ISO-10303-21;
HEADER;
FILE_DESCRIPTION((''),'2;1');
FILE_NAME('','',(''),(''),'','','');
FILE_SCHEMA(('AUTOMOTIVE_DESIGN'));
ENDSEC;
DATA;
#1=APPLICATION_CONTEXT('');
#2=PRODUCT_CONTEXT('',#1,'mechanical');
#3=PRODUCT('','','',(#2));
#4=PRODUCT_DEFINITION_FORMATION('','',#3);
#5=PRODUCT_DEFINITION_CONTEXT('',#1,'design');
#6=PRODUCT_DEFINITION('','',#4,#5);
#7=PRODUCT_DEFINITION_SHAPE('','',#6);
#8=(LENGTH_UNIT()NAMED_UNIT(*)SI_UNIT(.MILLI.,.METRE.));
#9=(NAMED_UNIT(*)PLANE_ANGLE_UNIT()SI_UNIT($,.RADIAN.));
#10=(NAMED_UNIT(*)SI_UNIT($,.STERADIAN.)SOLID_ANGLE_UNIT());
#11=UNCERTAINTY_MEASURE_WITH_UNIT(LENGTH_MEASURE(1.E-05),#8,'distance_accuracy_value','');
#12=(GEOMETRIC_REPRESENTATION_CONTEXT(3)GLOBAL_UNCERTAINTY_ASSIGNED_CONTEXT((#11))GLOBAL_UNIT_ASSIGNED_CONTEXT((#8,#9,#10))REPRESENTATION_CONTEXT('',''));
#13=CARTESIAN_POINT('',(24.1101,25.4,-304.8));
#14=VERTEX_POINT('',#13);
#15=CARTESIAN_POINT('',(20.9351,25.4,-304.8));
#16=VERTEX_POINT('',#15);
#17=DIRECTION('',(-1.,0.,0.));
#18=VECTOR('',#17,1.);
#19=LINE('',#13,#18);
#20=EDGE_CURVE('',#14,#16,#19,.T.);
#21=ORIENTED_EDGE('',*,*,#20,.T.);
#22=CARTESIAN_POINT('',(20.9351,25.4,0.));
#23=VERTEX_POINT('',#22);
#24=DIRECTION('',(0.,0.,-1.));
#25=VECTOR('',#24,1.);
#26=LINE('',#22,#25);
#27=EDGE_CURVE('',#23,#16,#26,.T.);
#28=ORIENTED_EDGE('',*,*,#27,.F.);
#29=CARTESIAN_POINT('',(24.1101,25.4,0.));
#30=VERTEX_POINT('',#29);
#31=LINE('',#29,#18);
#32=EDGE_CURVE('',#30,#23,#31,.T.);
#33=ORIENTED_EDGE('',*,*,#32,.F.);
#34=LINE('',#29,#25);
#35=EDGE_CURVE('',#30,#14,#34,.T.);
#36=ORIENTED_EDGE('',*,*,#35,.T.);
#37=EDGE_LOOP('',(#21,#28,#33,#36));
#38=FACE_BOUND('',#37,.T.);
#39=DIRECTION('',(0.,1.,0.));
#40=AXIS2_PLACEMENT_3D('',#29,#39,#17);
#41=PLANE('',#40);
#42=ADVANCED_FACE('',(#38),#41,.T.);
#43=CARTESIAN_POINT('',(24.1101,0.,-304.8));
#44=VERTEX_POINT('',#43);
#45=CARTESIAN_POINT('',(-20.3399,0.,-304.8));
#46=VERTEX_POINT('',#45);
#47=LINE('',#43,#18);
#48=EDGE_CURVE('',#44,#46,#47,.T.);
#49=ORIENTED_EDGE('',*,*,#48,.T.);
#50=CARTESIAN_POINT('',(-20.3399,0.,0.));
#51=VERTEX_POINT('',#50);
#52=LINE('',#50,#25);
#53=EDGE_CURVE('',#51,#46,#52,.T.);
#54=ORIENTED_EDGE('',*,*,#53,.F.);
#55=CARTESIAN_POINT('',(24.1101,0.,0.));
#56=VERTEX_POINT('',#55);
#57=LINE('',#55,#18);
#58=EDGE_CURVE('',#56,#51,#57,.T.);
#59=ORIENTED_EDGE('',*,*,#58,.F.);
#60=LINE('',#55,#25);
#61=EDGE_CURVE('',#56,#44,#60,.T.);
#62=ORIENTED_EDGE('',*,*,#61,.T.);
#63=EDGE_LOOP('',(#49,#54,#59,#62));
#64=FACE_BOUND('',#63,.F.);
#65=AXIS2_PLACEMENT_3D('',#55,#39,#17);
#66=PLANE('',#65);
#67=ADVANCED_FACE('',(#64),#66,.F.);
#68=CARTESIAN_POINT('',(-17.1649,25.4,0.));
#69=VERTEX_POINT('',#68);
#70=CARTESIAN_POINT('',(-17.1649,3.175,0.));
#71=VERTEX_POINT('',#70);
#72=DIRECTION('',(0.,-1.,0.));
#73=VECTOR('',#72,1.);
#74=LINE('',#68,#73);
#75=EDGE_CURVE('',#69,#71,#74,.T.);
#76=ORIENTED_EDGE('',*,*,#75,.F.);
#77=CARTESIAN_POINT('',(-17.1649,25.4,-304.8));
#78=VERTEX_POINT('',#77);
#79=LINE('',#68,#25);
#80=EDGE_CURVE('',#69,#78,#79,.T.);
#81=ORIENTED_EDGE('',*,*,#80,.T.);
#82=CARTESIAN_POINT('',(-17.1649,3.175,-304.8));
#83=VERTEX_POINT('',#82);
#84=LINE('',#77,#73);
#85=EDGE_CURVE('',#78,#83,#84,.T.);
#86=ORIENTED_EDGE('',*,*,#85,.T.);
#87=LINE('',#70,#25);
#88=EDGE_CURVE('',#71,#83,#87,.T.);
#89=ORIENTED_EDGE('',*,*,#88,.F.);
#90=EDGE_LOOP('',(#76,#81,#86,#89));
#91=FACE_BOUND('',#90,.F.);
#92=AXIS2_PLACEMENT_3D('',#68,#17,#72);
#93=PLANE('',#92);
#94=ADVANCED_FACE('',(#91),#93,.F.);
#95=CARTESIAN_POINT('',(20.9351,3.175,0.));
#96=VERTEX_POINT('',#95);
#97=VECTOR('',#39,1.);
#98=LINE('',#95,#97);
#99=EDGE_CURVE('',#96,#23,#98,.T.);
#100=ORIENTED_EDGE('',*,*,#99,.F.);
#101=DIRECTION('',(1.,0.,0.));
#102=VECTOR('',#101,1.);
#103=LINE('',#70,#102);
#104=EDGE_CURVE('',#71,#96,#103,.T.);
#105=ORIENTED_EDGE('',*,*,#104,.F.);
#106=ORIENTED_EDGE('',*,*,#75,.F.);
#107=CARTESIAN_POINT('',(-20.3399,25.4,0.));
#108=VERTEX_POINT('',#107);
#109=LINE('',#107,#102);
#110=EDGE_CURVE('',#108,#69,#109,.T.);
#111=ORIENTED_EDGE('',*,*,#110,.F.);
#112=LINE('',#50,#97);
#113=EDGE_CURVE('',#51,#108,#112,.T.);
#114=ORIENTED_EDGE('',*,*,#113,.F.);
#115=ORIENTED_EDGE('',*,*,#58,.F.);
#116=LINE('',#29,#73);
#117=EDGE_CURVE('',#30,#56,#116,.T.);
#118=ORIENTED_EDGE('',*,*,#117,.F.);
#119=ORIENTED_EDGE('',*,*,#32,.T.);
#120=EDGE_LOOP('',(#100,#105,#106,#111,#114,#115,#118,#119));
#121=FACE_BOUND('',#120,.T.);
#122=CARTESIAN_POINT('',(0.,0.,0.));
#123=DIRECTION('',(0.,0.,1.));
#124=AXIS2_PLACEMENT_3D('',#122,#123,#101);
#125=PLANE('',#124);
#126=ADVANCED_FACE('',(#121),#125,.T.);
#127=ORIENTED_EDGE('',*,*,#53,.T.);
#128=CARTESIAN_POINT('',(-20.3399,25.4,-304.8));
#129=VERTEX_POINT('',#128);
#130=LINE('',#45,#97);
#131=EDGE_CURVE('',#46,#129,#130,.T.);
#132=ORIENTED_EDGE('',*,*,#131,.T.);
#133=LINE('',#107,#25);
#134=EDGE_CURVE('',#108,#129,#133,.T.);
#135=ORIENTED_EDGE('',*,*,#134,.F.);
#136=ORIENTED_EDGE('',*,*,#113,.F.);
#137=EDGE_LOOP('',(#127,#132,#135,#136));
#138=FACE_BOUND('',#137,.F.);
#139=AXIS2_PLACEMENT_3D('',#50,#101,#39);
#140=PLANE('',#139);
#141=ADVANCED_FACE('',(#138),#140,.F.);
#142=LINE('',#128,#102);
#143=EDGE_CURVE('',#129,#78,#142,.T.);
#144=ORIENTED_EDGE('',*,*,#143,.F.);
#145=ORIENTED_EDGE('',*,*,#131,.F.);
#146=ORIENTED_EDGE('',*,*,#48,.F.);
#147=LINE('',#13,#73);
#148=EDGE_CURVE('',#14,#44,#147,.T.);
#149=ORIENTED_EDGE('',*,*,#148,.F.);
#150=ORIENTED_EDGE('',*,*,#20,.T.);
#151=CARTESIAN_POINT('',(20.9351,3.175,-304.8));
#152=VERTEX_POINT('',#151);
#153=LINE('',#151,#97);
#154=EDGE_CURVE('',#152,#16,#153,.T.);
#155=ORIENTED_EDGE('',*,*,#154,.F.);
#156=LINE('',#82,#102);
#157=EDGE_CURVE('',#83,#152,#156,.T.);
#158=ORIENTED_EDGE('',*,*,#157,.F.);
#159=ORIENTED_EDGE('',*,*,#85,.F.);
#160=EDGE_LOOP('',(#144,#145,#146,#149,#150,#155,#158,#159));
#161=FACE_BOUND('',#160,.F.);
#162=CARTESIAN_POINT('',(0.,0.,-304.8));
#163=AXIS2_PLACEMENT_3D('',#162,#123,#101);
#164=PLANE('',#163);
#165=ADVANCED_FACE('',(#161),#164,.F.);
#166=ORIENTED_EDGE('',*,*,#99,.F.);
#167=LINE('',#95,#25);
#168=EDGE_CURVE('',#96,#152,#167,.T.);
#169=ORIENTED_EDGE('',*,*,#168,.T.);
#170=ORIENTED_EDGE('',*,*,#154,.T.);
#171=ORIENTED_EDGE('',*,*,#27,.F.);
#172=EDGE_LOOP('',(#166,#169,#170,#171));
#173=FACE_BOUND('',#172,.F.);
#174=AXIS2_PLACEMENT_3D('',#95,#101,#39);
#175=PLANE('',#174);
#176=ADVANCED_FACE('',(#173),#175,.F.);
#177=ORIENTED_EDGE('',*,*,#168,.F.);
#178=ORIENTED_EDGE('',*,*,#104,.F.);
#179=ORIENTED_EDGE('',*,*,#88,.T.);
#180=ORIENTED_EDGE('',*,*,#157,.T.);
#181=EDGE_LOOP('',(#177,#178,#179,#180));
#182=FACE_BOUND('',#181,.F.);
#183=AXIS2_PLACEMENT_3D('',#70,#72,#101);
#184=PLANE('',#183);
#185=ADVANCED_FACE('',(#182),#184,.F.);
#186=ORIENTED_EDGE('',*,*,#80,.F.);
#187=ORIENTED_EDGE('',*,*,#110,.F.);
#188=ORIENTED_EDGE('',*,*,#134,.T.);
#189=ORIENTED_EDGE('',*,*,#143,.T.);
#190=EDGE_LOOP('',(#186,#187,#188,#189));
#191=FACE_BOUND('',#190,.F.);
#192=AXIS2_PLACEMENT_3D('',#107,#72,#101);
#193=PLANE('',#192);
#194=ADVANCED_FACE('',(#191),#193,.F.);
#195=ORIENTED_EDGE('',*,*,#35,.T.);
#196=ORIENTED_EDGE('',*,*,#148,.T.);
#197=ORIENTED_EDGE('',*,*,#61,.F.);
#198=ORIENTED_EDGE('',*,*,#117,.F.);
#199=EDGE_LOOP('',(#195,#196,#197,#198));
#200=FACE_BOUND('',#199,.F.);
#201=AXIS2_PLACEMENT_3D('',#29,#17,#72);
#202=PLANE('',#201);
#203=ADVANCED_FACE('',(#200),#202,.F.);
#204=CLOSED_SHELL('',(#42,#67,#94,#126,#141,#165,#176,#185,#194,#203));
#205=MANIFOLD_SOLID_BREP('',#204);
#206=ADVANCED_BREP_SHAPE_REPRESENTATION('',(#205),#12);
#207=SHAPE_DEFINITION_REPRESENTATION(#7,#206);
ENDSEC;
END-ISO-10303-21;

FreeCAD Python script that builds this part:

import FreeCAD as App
import Part
import Sketcher

V = App.Vector
Q = App.Units.Quantity

doc = App.newDocument("Part")
body = doc.addObject("PartDesign::Body", "Body")

# Sketch on XY plane
sketch1 = doc.addObject("Sketcher::SketchObject", "Sketch")
body.addObject(sketch1)
sketch1.AttachmentSupport = (doc.XY_Plane, [""])
sketch1.MapMode = "FlatFace"
sketch1.addGeometry([
    Part.LineSegment(V(24.1101, 0, 0), V(24.1101, 25.4, 0)),  # 0
    Part.LineSegment(V(24.1101, 25.4, 0), V(20.9351, 25.4, 0)),  # 1
    Part.LineSegment(V(20.9351, 25.4, 0), V(20.9351, 3.175, 0)),  # 2
    Part.LineSegment(V(20.9351, 3.175, 0), V(-17.1649, 3.175, 0)),  # 3
    Part.LineSegment(V(-17.1649, 3.175, 0), V(-17.1649, 25.4, 0)),  # 4
    Part.LineSegment(V(-17.1649, 25.4, 0), V(-20.3399, 25.4, 0)),  # 5
    Part.LineSegment(V(-20.3399, 25.4, 0), V(-20.3399, 0, 0)),  # 6
    Part.LineSegment(V(-20.3399, 0, 0), V(24.1101, 0, 0)),  # 7
], False)
sketch1.addConstraint([
    Sketcher.Constraint("Coincident", 0, 2, 1, 1),
    Sketcher.Constraint("Coincident", 1, 2, 2, 1),
    Sketcher.Constraint("Coincident", 2, 2, 3, 1),
    Sketcher.Constraint("Coincident", 3, 2, 4, 1),
    Sketcher.Constraint("Coincident", 4, 2, 5, 1),
    Sketcher.Constraint("Coincident", 5, 2, 6, 1),
    Sketcher.Constraint("Coincident", 6, 2, 7, 1),
    Sketcher.Constraint("Coincident", 7, 2, 0, 1),
    Sketcher.Constraint("Vertical", 0),
    Sketcher.Constraint("Horizontal", 1),
    Sketcher.Constraint("Vertical", 2),
    Sketcher.Constraint("Horizontal", 3),
    Sketcher.Constraint("Vertical", 4),
    Sketcher.Constraint("Horizontal", 5),
    Sketcher.Constraint("Vertical", 6),
    Sketcher.Constraint("Horizontal", 7),
    Sketcher.Constraint("PointOnObject", 6, 2, -1),
    Sketcher.Constraint("Horizontal", 1, 2, 4, 2),
    Sketcher.Constraint("Equal", 1, 5),
    Sketcher.Constraint("DistanceY", 0, 1, 0, 2, Q("1 in")),
    Sketcher.Constraint("DistanceX", 7, 1, 7, 2, Q("1.75 in")),
    Sketcher.Constraint("DistanceX", 1, 2, 1, 1, Q("0.125 in")),
    Sketcher.Constraint("DistanceY", -1, 1, 2, 2, Q("0.125 in")),
    Sketcher.Constraint("DistanceX", -1, 1, 0, 2, Q("24.11 mm")),
])
pad1 = doc.addObject("PartDesign::Pad", "Pad")
body.addObject(pad1)
pad1.Profile = sketch1
pad1.Length = Q("12 in")
pad1.Reversed = True

doc.recompute()
